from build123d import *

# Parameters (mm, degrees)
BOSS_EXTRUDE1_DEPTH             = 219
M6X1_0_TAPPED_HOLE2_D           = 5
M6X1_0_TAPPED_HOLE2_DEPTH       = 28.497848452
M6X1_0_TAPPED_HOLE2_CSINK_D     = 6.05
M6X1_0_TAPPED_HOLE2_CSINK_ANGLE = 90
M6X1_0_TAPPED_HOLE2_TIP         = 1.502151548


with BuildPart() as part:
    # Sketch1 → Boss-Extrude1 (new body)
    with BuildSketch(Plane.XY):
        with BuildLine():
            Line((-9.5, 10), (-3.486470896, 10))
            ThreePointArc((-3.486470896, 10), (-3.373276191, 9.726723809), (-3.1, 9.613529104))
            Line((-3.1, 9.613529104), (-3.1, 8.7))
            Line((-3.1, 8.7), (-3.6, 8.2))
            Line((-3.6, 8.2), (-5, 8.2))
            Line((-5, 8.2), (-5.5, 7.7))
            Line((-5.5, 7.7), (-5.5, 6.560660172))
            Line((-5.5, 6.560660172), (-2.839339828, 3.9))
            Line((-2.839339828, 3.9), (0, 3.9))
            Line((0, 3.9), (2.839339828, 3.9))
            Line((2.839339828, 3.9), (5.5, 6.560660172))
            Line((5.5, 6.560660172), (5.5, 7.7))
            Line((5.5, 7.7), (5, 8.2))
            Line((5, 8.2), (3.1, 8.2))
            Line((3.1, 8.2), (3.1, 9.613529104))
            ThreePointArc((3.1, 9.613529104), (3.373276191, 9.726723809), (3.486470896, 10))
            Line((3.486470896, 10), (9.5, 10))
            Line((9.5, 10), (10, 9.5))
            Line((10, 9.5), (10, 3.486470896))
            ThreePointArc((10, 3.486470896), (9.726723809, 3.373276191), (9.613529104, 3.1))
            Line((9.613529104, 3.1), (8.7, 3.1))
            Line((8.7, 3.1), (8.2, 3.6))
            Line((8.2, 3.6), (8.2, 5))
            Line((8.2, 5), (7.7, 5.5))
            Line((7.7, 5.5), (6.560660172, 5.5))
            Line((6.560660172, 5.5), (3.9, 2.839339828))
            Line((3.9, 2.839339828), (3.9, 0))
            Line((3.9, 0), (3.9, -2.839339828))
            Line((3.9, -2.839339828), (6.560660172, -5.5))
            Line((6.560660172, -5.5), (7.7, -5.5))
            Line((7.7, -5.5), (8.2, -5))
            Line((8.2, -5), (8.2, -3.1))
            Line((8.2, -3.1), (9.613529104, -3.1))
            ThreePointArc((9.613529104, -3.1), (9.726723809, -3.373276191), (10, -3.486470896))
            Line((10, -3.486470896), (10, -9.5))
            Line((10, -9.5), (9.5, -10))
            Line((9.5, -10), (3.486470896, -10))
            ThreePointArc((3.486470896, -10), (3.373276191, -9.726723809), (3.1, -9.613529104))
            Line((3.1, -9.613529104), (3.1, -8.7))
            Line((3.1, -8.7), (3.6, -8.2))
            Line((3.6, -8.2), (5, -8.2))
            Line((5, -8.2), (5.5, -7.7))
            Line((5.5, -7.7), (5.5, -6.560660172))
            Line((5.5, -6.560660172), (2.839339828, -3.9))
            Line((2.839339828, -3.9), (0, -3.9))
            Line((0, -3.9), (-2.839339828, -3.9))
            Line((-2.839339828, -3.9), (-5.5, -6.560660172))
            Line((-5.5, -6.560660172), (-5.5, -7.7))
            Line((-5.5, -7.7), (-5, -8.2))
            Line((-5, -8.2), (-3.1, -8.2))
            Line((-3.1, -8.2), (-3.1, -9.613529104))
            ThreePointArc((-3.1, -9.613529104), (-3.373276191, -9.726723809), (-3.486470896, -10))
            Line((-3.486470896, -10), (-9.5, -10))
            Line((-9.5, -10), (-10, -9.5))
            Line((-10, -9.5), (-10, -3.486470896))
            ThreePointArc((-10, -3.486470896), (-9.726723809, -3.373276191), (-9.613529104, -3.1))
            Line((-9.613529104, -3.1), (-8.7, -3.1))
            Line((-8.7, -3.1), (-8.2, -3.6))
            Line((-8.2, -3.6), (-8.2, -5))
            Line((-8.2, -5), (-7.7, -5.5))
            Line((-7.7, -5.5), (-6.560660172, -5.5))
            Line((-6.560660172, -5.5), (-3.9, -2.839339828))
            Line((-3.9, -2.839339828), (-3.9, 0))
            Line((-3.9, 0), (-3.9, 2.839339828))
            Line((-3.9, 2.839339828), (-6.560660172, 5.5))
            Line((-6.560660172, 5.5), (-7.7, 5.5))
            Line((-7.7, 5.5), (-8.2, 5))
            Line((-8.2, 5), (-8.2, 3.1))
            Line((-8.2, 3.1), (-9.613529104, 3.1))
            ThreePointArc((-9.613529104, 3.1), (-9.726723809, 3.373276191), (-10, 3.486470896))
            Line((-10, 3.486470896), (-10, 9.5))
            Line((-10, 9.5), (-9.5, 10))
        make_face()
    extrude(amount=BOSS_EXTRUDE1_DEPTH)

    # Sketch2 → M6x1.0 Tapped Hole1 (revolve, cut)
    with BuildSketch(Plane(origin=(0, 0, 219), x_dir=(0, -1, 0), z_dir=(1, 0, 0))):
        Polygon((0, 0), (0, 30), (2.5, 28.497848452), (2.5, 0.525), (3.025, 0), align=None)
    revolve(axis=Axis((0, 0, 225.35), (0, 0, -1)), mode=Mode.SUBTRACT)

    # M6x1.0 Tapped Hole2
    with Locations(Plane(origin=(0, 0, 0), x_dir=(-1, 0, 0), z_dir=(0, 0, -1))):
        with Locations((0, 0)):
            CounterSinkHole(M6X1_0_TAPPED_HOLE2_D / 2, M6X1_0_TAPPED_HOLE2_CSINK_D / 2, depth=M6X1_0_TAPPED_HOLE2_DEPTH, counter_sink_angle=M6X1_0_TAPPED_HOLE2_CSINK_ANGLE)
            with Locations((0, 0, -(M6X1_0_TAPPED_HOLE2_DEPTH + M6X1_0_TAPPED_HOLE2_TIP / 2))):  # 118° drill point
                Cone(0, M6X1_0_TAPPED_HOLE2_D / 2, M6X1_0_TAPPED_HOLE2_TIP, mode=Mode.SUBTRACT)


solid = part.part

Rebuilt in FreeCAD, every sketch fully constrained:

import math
import FreeCAD as App
import Part
import Sketcher
Q = App.Units.Quantity


def add_polygon(sketch, points):
    """Adds a closed chain of lines whose ends are joined by coincident constraints."""
    first, n = sketch.GeometryCount, len(points)
    for a, b in zip(points, points[1:] + points[:1]):
        sketch.addGeometry(Part.LineSegment(App.Vector(*a, 0), App.Vector(*b, 0)), False)
    for i in range(n):
        sketch.addConstraint(Sketcher.Constraint("Coincident", first + i, 2, first + (i + 1) % n, 1))

doc = App.newDocument("Part")
params = doc.addObject("Spreadsheet::Sheet", "Params")
for row, (alias, value) in enumerate([
    ("sketch1_width", "1.9 mm"),
    ("sketch1_width2", "1.4 mm"),
    ("pad1_length", "219 mm"),
    ("sketch2_height", "30 mm"),
    ("groove_angle", "360 deg"),
    ("sketch3_diameter", "5 mm"),
    ("hole_diameter", "5 mm"),
    ("hole_depth", "28.497848 mm"),
    ("hole_csink_diameter", "6.05 mm"),
], start=1):
    params.set(f"A{row}", alias)
    params.set(f"B{row}", "=" + value)
    params.setAlias(f"B{row}", alias)

body = doc.addObject("PartDesign::Body", "Body")

sketch1 = doc.addObject("Sketcher::SketchObject", "Sketch")
body.addObject(sketch1)
sketch1.AttachmentSupport = (doc.XY_Plane, [""])
sketch1.MapMode = "FlatFace"
sketch1.addGeometry([
    Part.LineSegment(App.Vector(-3.49, 10, 0), App.Vector(-9.5, 10, 0)),
    Part.LineSegment(App.Vector(-9.5, 10, 0), App.Vector(-10, 9.5, 0)),
    Part.LineSegment(App.Vector(-10, 9.5, 0), App.Vector(-10, 3.49, 0)),
    Part.ArcOfCircle(Part.Circle(App.Vector(-10, 3.1, 0), App.Vector(0, 0, 1), 0.39), math.radians(0), math.radians(90)),
    Part.LineSegment(App.Vector(-9.61, 3.1, 0), App.Vector(-8.2, 3.1, 0)),
    Part.LineSegment(App.Vector(-8.2, 3.1, 0), App.Vector(-8.2, 5, 0)),
    Part.LineSegment(App.Vector(-8.2, 5, 0), App.Vector(-7.7, 5.5, 0)),
    Part.LineSegment(App.Vector(-7.7, 5.5, 0), App.Vector(-6.56, 5.5, 0)),
    Part.LineSegment(App.Vector(-6.56, 5.5, 0), App.Vector(-3.9, 2.84, 0)),
    Part.LineSegment(App.Vector(-3.9, 2.84, 0), App.Vector(-3.9, -2.84, 0)),
    Part.LineSegment(App.Vector(-3.9, -2.84, 0), App.Vector(-6.56, -5.5, 0)),
    Part.LineSegment(App.Vector(-6.56, -5.5, 0), App.Vector(-7.7, -5.5, 0)),
    Part.LineSegment(App.Vector(-7.7, -5.5, 0), App.Vector(-8.2, -5, 0)),
    Part.LineSegment(App.Vector(-8.2, -5, 0), App.Vector(-8.2, -3.6, 0)),
    Part.LineSegment(App.Vector(-8.2, -3.6, 0), App.Vector(-8.7, -3.1, 0)),
    Part.LineSegment(App.Vector(-8.7, -3.1, 0), App.Vector(-9.61, -3.1, 0)),
    Part.ArcOfCircle(Part.Circle(App.Vector(-10, -3.1, 0), App.Vector(0, 0, 1), 0.39), math.radians(-90), math.radians(0)),
    Part.LineSegment(App.Vector(-10, -3.49, 0), App.Vector(-10, -9.5, 0)),
    Part.LineSegment(App.Vector(-10, -9.5, 0), App.Vector(-9.5, -10, 0)),
    Part.LineSegment(App.Vector(-9.5, -10, 0), App.Vector(-3.49, -10, 0)),
    Part.ArcOfCircle(Part.Circle(App.Vector(-3.1, -10, 0), App.Vector(0, 0, 1), 0.39), math.radians(90), math.radians(180)),
    Part.LineSegment(App.Vector(-3.1, -9.61, 0), App.Vector(-3.1, -8.2, 0)),
    Part.LineSegment(App.Vector(-3.1, -8.2, 0), App.Vector(-5, -8.2, 0)),
    Part.LineSegment(App.Vector(-5, -8.2, 0), App.Vector(-5.5, -7.7, 0)),
    Part.LineSegment(App.Vector(-5.5, -7.7, 0), App.Vector(-5.5, -6.56, 0)),
    Part.LineSegment(App.Vector(-5.5, -6.56, 0), App.Vector(-2.84, -3.9, 0)),
    Part.LineSegment(App.Vector(-2.84, -3.9, 0), App.Vector(2.84, -3.9, 0)),
    Part.LineSegment(App.Vector(2.84, -3.9, 0), App.Vector(5.5, -6.56, 0)),
    Part.LineSegment(App.Vector(5.5, -6.56, 0), App.Vector(5.5, -7.7, 0)),
    Part.LineSegment(App.Vector(5.5, -7.7, 0), App.Vector(5, -8.2, 0)),
    Part.LineSegment(App.Vector(5, -8.2, 0), App.Vector(3.6, -8.2, 0)),
    Part.LineSegment(App.Vector(3.6, -8.2, 0), App.Vector(3.1, -8.7, 0)),
    Part.LineSegment(App.Vector(3.1, -8.7, 0), App.Vector(3.1, -9.61, 0)),
    Part.ArcOfCircle(Part.Circle(App.Vector(3.1, -10, 0), App.Vector(0, 0, 1), 0.39), math.radians(0), math.radians(90)),
    Part.LineSegment(App.Vector(3.49, -10, 0), App.Vector(9.5, -10, 0)),
    Part.LineSegment(App.Vector(9.5, -10, 0), App.Vector(10, -9.5, 0)),
    Part.LineSegment(App.Vector(10, -9.5, 0), App.Vector(10, -3.49, 0)),
    Part.ArcOfCircle(Part.Circle(App.Vector(10, -3.1, 0), App.Vector(0, 0, 1), 0.39), math.radians(-180), math.radians(-90)),
    Part.LineSegment(App.Vector(9.61, -3.1, 0), App.Vector(8.2, -3.1, 0)),
    Part.LineSegment(App.Vector(8.2, -3.1, 0), App.Vector(8.2, -5, 0)),
    Part.LineSegment(App.Vector(8.2, -5, 0), App.Vector(7.7, -5.5, 0)),
    Part.LineSegment(App.Vector(7.7, -5.5, 0), App.Vector(6.56, -5.5, 0)),
    Part.LineSegment(App.Vector(6.56, -5.5, 0), App.Vector(3.9, -2.84, 0)),
    Part.LineSegment(App.Vector(3.9, -2.84, 0), App.Vector(3.9, 2.84, 0)),
    Part.LineSegment(App.Vector(3.9, 2.84, 0), App.Vector(6.56, 5.5, 0)),
    Part.LineSegment(App.Vector(6.56, 5.5, 0), App.Vector(7.7, 5.5, 0)),
    Part.LineSegment(App.Vector(7.7, 5.5, 0), App.Vector(8.2, 5, 0)),
    Part.LineSegment(App.Vector(8.2, 5, 0), App.Vector(8.2, 3.6, 0)),
    Part.LineSegment(App.Vector(8.2, 3.6, 0), App.Vector(8.7, 3.1, 0)),
    Part.LineSegment(App.Vector(8.7, 3.1, 0), App.Vector(9.61, 3.1, 0)),
    Part.ArcOfCircle(Part.Circle(App.Vector(10, 3.1, 0), App.Vector(0, 0, 1), 0.39), math.radians(90), math.radians(180)),
    Part.LineSegment(App.Vector(10, 3.49, 0), App.Vector(10, 9.5, 0)),
    Part.LineSegment(App.Vector(10, 9.5, 0), App.Vector(9.5, 10, 0)),
    Part.LineSegment(App.Vector(9.5, 10, 0), App.Vector(3.49, 10, 0)),
    Part.ArcOfCircle(Part.Circle(App.Vector(3.1, 10, 0), App.Vector(0, 0, 1), 0.39), math.radians(-90), math.radians(0)),
    Part.LineSegment(App.Vector(3.1, 9.61, 0), App.Vector(3.1, 8.2, 0)),
    Part.LineSegment(App.Vector(3.1, 8.2, 0), App.Vector(5, 8.2, 0)),
    Part.LineSegment(App.Vector(5, 8.2, 0), App.Vector(5.5, 7.7, 0)),
    Part.LineSegment(App.Vector(5.5, 7.7, 0), App.Vector(5.5, 6.56, 0)),
    Part.LineSegment(App.Vector(5.5, 6.56, 0), App.Vector(2.84, 3.9, 0)),
    Part.LineSegment(App.Vector(2.84, 3.9, 0), App.Vector(-2.84, 3.9, 0)),
    Part.LineSegment(App.Vector(-2.84, 3.9, 0), App.Vector(-5.5, 6.56, 0)),
    Part.LineSegment(App.Vector(-5.5, 6.56, 0), App.Vector(-5.5, 7.7, 0)),
    Part.LineSegment(App.Vector(-5.5, 7.7, 0), App.Vector(-5, 8.2, 0)),
    Part.LineSegment(App.Vector(-5, 8.2, 0), App.Vector(-3.6, 8.2, 0)),
    Part.LineSegment(App.Vector(-3.6, 8.2, 0), App.Vector(-3.1, 8.7, 0)),
    Part.LineSegment(App.Vector(-3.1, 8.7, 0), App.Vector(-3.1, 9.61, 0)),
    Part.ArcOfCircle(Part.Circle(App.Vector(-3.1, 10, 0), App.Vector(0, 0, 1), 0.39), math.radians(-180), math.radians(-90)),
], False)
sketch1.addConstraint([
    Sketcher.Constraint("Coincident", 0, 2, 1, 1),
    Sketcher.Constraint("Coincident", 1, 2, 2, 1),
    Sketcher.Constraint("Coincident", 2, 2, 3, 2),
    Sketcher.Constraint("Coincident", 3, 1, 4, 1),
    Sketcher.Constraint("Coincident", 4, 2, 5, 1),
    Sketcher.Constraint("Coincident", 5, 2, 6, 1),
    Sketcher.Constraint("Coincident", 6, 2, 7, 1),
    Sketcher.Constraint("Coincident", 7, 2, 8, 1),
    Sketcher.Constraint("Coincident", 8, 2, 9, 1),
    Sketcher.Constraint("Coincident", 9, 2, 10, 1),
    Sketcher.Constraint("Coincident", 10, 2, 11, 1),
    Sketcher.Constraint("Coincident", 11, 2, 12, 1),
    Sketcher.Constraint("Coincident", 12, 2, 13, 1),
    Sketcher.Constraint("Coincident", 13, 2, 14, 1),
    Sketcher.Constraint("Coincident", 14, 2, 15, 1),
    Sketcher.Constraint("Coincident", 15, 2, 16, 2),
    Sketcher.Constraint("Coincident", 16, 1, 17, 1),
    Sketcher.Constraint("Coincident", 17, 2, 18, 1),
    Sketcher.Constraint("Coincident", 18, 2, 19, 1),
    Sketcher.Constraint("Coincident", 19, 2, 20, 2),
    Sketcher.Constraint("Coincident", 20, 1, 21, 1),
    Sketcher.Constraint("Coincident", 21, 2, 22, 1),
    Sketcher.Constraint("Coincident", 22, 2, 23, 1),
    Sketcher.Constraint("Coincident", 23, 2, 24, 1),
    Sketcher.Constraint("Coincident", 24, 2, 25, 1),
    Sketcher.Constraint("Coincident", 25, 2, 26, 1),
    Sketcher.Constraint("Coincident", 26, 2, 27, 1),
    Sketcher.Constraint("Coincident", 27, 2, 28, 1),
    Sketcher.Constraint("Coincident", 28, 2, 29, 1),
    Sketcher.Constraint("Coincident", 29, 2, 30, 1),
    Sketcher.Constraint("Coincident", 30, 2, 31, 1),
    Sketcher.Constraint("Coincident", 31, 2, 32, 1),
    Sketcher.Constraint("Coincident", 32, 2, 33, 2),
    Sketcher.Constraint("Coincident", 33, 1, 34, 1),
    Sketcher.Constraint("Coincident", 34, 2, 35, 1),
    Sketcher.Constraint("Coincident", 35, 2, 36, 1),
    Sketcher.Constraint("Coincident", 36, 2, 37, 2),
    Sketcher.Constraint("Coincident", 37, 1, 38, 1),
    Sketcher.Constraint("Coincident", 38, 2, 39, 1),
    Sketcher.Constraint("Coincident", 39, 2, 40, 1),
    Sketcher.Constraint("Coincident", 40, 2, 41, 1),
    Sketcher.Constraint("Coincident", 41, 2, 42, 1),
    Sketcher.Constraint("Coincident", 42, 2, 43, 1),
    Sketcher.Constraint("Coincident", 43, 2, 44, 1),
    Sketcher.Constraint("Coincident", 44, 2, 45, 1),
    Sketcher.Constraint("Coincident", 45, 2, 46, 1),
    Sketcher.Constraint("Coincident", 46, 2, 47, 1),
    Sketcher.Constraint("Coincident", 47, 2, 48, 1),
    Sketcher.Constraint("Coincident", 48, 2, 49, 1),
    Sketcher.Constraint("Coincident", 49, 2, 50, 2),
    Sketcher.Constraint("Coincident", 50, 1, 51, 1),
    Sketcher.Constraint("Coincident", 51, 2, 52, 1),
    Sketcher.Constraint("Coincident", 52, 2, 53, 1),
    Sketcher.Constraint("Coincident", 53, 2, 54, 2),
    Sketcher.Constraint("Coincident", 54, 1, 55, 1),
    Sketcher.Constraint("Coincident", 55, 2, 56, 1),
    Sketcher.Constraint("Coincident", 56, 2, 57, 1),
    Sketcher.Constraint("Coincident", 57, 2, 58, 1),
    Sketcher.Constraint("Coincident", 58, 2, 59, 1),
    Sketcher.Constraint("Coincident", 59, 2, 60, 1),
    Sketcher.Constraint("Coincident", 60, 2, 61, 1),
    Sketcher.Constraint("Coincident", 61, 2, 62, 1),
    Sketcher.Constraint("Coincident", 62, 2, 63, 1),
    Sketcher.Constraint("Coincident", 63, 2, 64, 1),
    Sketcher.Constraint("Coincident", 64, 2, 65, 1),
    Sketcher.Constraint("Coincident", 65, 2, 66, 1),
    Sketcher.Constraint("Coincident", 66, 2, 67, 2),
    Sketcher.Constraint("Coincident", 67, 1, 0, 1),
    Sketcher.Constraint("Horizontal", 0),
    Sketcher.Constraint("Vertical", 2),
    Sketcher.Constraint("Horizontal", 4),
    Sketcher.Constraint("Vertical", 5),
    Sketcher.Constraint("Horizontal", 7),
    Sketcher.Constraint("Vertical", 9),
    Sketcher.Constraint("Horizontal", 11),
    Sketcher.Constraint("Vertical", 13),
    Sketcher.Constraint("Horizontal", 15),
    Sketcher.Constraint("Vertical", 17),
    Sketcher.Constraint("Horizontal", 19),
    Sketcher.Constraint("Vertical", 21),
    Sketcher.Constraint("Horizontal", 22),
    Sketcher.Constraint("Vertical", 24),
    Sketcher.Constraint("Horizontal", 26),
    Sketcher.Constraint("Vertical", 28),
    Sketcher.Constraint("Horizontal", 30),
    Sketcher.Constraint("Vertical", 32),
    Sketcher.Constraint("Horizontal", 34),
    Sketcher.Constraint("Vertical", 36),
    Sketcher.Constraint("Horizontal", 38),
    Sketcher.Constraint("Vertical", 39),
    Sketcher.Constraint("Horizontal", 41),
    Sketcher.Constraint("Vertical", 43),
    Sketcher.Constraint("Horizontal", 45),
    Sketcher.Constraint("Vertical", 47),
    Sketcher.Constraint("Horizontal", 49),
    Sketcher.Constraint("Vertical", 51),
    Sketcher.Constraint("Horizontal", 53),
    Sketcher.Constraint("Vertical", 55),
    Sketcher.Constraint("Horizontal", 56),
    Sketcher.Constraint("Vertical", 58),
    Sketcher.Constraint("Horizontal", 60),
    Sketcher.Constraint("Vertical", 62),
    Sketcher.Constraint("Horizontal", 64),
    Sketcher.Constraint("Vertical", 66),
    Sketcher.Constraint("Equal", 3, 16),
    Sketcher.Constraint("Equal", 16, 20),
    Sketcher.Constraint("Equal", 20, 33),
    Sketcher.Constraint("Equal", 33, 37),
    Sketcher.Constraint("Equal", 37, 50),
    Sketcher.Constraint("Equal", 50, 54),
    Sketcher.Constraint("Equal", 54, 67),
    Sketcher.Constraint("Symmetric", 3, 3, 37, 3, -1, 1),
    Sketcher.Constraint("Symmetric", 16, 3, 50, 3, -1, 1),
    Sketcher.Constraint("Symmetric", 20, 3, 54, 3, -1, 1),
    Sketcher.Constraint("Symmetric", 33, 3, 67, 3, -1, 1),
    Sketcher.Constraint("Symmetric", 0, 2, 34, 2, -1, 1),
    Sketcher.Constraint("Symmetric", 1, 2, 35, 2, -1, 1),
    Sketcher.Constraint("Symmetric", 4, 2, 38, 2, -1, 1),
    Sketcher.Constraint("Symmetric", 6, 2, 40, 2, -1, 1),
    Sketcher.Constraint("Symmetric", 8, 2, 42, 2, -1, 1),
    Sketcher.Constraint("Symmetric", 10, 2, 44, 2, -1, 1),
    Sketcher.Constraint("Symmetric", 12, 2, 46, 2, -1, 1),
    Sketcher.Constraint("Symmetric", 14, 2, 48, 2, -1, 1),
    Sketcher.Constraint("Symmetric", 17, 2, 51, 2, -1, 1),
    Sketcher.Constraint("Symmetric", 18, 2, 52, 2, -1, 1),
    Sketcher.Constraint("Symmetric", 21, 2, 55, 2, -1, 1),
    Sketcher.Constraint("Symmetric", 23, 2, 57, 2, -1, 1),
    Sketcher.Constraint("Symmetric", 25, 2, 59, 2, -1, 1),
    Sketcher.Constraint("Symmetric", 27, 2, 61, 2, -1, 1),
    Sketcher.Constraint("Symmetric", 29, 2, 63, 2, -1, 1),
    Sketcher.Constraint("Symmetric", 31, 2, 65, 2, -1, 1),
    Sketcher.Constraint("Symmetric", 20, 3, 33, 3, -2),
    Sketcher.Constraint("Symmetric", 16, 3, 37, 3, -2),
    Sketcher.Constraint("Symmetric", 24, 2, 27, 2, -2),
    Sketcher.Constraint("Symmetric", 22, 2, 29, 2, -2),
    Sketcher.Constraint("Symmetric", 18, 2, 34, 2, -2),
    Sketcher.Constraint("Symmetric", 17, 2, 35, 2, -2),
    Sketcher.Constraint("Symmetric", 12, 2, 39, 2, -2),
    Sketcher.Constraint("Symmetric", 11, 2, 40, 2, -2),
    Sketcher.Constraint("Parallel", 1, 6),
    Sketcher.Constraint("Perpendicular", 6, 8),
    Sketcher.Constraint("Perpendicular", 8, 10),
    Sketcher.Constraint("Perpendicular", 10, 12),
    Sketcher.Constraint("Parallel", 12, 14),
    Sketcher.Constraint("Parallel", 14, 18),
    Sketcher.Constraint("Parallel", 18, 23),
    Sketcher.Constraint("Perpendicular", 23, 25),
    Sketcher.Constraint("Perpendicular", 25, 27),
    Sketcher.Constraint("Perpendicular", 27, 29),
    Sketcher.Constraint("Parallel", 29, 31),
    Sketcher.Constraint("Perpendicular", 40, 42),
    Sketcher.Constraint("Perpendicular", 42, 44),
    Sketcher.Constraint("Perpendicular", 44, 46),
    Sketcher.Constraint("Parallel", 46, 48),
    Sketcher.Constraint("Parallel", 52, 57),
    Sketcher.Constraint("Perpendicular", 57, 59),
    Sketcher.Constraint("Perpendicular", 59, 61),
    Sketcher.Constraint("Perpendicular", 61, 63),
    Sketcher.Constraint("Parallel", 63, 65),
    Sketcher.Constraint("Horizontal", 67, 3, 0, 2),
    Sketcher.Constraint("Horizontal", 50, 3, 3, 1),
    Sketcher.Constraint("Horizontal", 37, 3, 14, 2),
    Sketcher.Constraint("Horizontal", 9, 2, 42, 2),
    Sketcher.Constraint("Vertical", 16, 3, 1, 2),
    Sketcher.Constraint("Vertical", 67, 3, 20, 1),
    Sketcher.Constraint("Vertical", 54, 3, 31, 2),
    Sketcher.Constraint("Equal", 53, 2),
    Sketcher.Constraint("Equal", 56, 5),
    Sketcher.Constraint("Equal", 60, 9),
    Sketcher.Constraint("Equal", 64, 13),
    Sketcher.Constraint("Equal", 38, 21),
    Sketcher.Constraint("Equal", 45, 24),
    Sketcher.Constraint("Equal", 1, 6),
    Sketcher.Constraint("Equal", 12, 14),
    Sketcher.Constraint("Equal", 18, 23),
    Sketcher.Constraint("Equal", 10, 25),
    Sketcher.Constraint("DistanceX", 22, 2, 22, 1, Q("1.9 mm")),
    Sketcher.Constraint("DistanceX", 30, 2, 30, 1, Q("1.4 mm")),
    Sketcher.Constraint("DistanceX", 3, 3, -1, 1, Q("10 mm")),
    Sketcher.Constraint("DistanceY", -1, 1, 5, 2, Q("5 mm")),
    Sketcher.Constraint("DistanceX", 4, 2, -1, 1, Q("8.2 mm")),
    Sketcher.Constraint("DistanceX", 8, 2, -1, 1, Q("3.9 mm")),
    Sketcher.Constraint("Radius", 3, Q("0.386471 mm")),
    Sketcher.Constraint("DistanceX", 7, 1, 7, 2, Q("1.13934 mm")),
])
sketch1.setExpression("Constraints[176]", "Params.sketch1_width")
sketch1.setExpression("Constraints[177]", "Params.sketch1_width2")
pad1 = doc.addObject("PartDesign::Pad", "Pad")
body.addObject(pad1)
pad1.Profile = sketch1
pad1.setExpression("Length", "Params.pad1_length")

sketch2 = doc.addObject("Sketcher::SketchObject", "Sketch001")
body.addObject(sketch2)
sketch2.AttachmentSupport = (doc.YZ_Plane, [""])
sketch2.MapMode = "FlatFace"
add_polygon(sketch2, [(0, 189), (0, 219), (-3, 219), (-2.5, 218.5), (-2.5, 190.5)])
sketch2.addConstraint([
    Sketcher.Constraint("Vertical", 0),
    Sketcher.Constraint("Horizontal", 1),
    Sketcher.Constraint("Vertical", 3),
    Sketcher.Constraint("PointOnObject", 0, 2, -2),
    Sketcher.Constraint("DistanceY", 0, 1, 0, 2, Q("30 mm")),
    Sketcher.Constraint("Angle", 2, Q("-45 deg")),
    Sketcher.Constraint("Angle", 4, Q("-31 deg")),
    Sketcher.Constraint("DistanceY", -1, 1, 0, 2, Q("219 mm")),
    Sketcher.Constraint("DistanceX", 2, 2, -1, 1, Q("2.5 mm")),
    Sketcher.Constraint("DistanceX", 1, 2, 1, 1, Q("3.025 mm")),
])
sketch2.setExpression("Constraints[9]", "Params.sketch2_height")
groove = doc.addObject("PartDesign::Groove", "Groove")
body.addObject(groove)
groove.Profile = sketch2
groove.ReferenceAxis = (sketch2, ["V_Axis"])
groove.setExpression("Angle", "Params.groove_angle")

sketch3 = doc.addObject("Sketcher::SketchObject", "Sketch002")
body.addObject(sketch3)
sketch3.AttachmentSupport = (doc.XY_Plane, [""])
sketch3.MapMode = "FlatFace"
sketch3.addGeometry(Part.Circle(App.Vector(0, 0, 0), App.Vector(0, 0, 1), 2.5), False)
sketch3.addConstraint([
    Sketcher.Constraint("Coincident", 0, 3, -1, 1),
    Sketcher.Constraint("Diameter", 0, Q("5 mm")),
])
sketch3.setExpression("Constraints[1]", "Params.sketch3_diameter")
doc.recompute()
hole = doc.addObject("PartDesign::Hole", "Hole")
body.addObject(hole)
hole.Profile = sketch3
hole.ThreadType = "None"
hole.setExpression("Diameter", "Params.hole_diameter")
hole.DepthType = "Dimension"
hole.setExpression("Depth", "Params.hole_depth")
hole.DrillPoint = "Angled"
hole.DrillPointAngle = 118
hole.HoleCutType = "Countersink"
hole.setExpression("HoleCutDiameter", "Params.hole_csink_diameter")
hole.HoleCutCountersinkAngle = 90
hole.Reversed = True

doc.recompute()
